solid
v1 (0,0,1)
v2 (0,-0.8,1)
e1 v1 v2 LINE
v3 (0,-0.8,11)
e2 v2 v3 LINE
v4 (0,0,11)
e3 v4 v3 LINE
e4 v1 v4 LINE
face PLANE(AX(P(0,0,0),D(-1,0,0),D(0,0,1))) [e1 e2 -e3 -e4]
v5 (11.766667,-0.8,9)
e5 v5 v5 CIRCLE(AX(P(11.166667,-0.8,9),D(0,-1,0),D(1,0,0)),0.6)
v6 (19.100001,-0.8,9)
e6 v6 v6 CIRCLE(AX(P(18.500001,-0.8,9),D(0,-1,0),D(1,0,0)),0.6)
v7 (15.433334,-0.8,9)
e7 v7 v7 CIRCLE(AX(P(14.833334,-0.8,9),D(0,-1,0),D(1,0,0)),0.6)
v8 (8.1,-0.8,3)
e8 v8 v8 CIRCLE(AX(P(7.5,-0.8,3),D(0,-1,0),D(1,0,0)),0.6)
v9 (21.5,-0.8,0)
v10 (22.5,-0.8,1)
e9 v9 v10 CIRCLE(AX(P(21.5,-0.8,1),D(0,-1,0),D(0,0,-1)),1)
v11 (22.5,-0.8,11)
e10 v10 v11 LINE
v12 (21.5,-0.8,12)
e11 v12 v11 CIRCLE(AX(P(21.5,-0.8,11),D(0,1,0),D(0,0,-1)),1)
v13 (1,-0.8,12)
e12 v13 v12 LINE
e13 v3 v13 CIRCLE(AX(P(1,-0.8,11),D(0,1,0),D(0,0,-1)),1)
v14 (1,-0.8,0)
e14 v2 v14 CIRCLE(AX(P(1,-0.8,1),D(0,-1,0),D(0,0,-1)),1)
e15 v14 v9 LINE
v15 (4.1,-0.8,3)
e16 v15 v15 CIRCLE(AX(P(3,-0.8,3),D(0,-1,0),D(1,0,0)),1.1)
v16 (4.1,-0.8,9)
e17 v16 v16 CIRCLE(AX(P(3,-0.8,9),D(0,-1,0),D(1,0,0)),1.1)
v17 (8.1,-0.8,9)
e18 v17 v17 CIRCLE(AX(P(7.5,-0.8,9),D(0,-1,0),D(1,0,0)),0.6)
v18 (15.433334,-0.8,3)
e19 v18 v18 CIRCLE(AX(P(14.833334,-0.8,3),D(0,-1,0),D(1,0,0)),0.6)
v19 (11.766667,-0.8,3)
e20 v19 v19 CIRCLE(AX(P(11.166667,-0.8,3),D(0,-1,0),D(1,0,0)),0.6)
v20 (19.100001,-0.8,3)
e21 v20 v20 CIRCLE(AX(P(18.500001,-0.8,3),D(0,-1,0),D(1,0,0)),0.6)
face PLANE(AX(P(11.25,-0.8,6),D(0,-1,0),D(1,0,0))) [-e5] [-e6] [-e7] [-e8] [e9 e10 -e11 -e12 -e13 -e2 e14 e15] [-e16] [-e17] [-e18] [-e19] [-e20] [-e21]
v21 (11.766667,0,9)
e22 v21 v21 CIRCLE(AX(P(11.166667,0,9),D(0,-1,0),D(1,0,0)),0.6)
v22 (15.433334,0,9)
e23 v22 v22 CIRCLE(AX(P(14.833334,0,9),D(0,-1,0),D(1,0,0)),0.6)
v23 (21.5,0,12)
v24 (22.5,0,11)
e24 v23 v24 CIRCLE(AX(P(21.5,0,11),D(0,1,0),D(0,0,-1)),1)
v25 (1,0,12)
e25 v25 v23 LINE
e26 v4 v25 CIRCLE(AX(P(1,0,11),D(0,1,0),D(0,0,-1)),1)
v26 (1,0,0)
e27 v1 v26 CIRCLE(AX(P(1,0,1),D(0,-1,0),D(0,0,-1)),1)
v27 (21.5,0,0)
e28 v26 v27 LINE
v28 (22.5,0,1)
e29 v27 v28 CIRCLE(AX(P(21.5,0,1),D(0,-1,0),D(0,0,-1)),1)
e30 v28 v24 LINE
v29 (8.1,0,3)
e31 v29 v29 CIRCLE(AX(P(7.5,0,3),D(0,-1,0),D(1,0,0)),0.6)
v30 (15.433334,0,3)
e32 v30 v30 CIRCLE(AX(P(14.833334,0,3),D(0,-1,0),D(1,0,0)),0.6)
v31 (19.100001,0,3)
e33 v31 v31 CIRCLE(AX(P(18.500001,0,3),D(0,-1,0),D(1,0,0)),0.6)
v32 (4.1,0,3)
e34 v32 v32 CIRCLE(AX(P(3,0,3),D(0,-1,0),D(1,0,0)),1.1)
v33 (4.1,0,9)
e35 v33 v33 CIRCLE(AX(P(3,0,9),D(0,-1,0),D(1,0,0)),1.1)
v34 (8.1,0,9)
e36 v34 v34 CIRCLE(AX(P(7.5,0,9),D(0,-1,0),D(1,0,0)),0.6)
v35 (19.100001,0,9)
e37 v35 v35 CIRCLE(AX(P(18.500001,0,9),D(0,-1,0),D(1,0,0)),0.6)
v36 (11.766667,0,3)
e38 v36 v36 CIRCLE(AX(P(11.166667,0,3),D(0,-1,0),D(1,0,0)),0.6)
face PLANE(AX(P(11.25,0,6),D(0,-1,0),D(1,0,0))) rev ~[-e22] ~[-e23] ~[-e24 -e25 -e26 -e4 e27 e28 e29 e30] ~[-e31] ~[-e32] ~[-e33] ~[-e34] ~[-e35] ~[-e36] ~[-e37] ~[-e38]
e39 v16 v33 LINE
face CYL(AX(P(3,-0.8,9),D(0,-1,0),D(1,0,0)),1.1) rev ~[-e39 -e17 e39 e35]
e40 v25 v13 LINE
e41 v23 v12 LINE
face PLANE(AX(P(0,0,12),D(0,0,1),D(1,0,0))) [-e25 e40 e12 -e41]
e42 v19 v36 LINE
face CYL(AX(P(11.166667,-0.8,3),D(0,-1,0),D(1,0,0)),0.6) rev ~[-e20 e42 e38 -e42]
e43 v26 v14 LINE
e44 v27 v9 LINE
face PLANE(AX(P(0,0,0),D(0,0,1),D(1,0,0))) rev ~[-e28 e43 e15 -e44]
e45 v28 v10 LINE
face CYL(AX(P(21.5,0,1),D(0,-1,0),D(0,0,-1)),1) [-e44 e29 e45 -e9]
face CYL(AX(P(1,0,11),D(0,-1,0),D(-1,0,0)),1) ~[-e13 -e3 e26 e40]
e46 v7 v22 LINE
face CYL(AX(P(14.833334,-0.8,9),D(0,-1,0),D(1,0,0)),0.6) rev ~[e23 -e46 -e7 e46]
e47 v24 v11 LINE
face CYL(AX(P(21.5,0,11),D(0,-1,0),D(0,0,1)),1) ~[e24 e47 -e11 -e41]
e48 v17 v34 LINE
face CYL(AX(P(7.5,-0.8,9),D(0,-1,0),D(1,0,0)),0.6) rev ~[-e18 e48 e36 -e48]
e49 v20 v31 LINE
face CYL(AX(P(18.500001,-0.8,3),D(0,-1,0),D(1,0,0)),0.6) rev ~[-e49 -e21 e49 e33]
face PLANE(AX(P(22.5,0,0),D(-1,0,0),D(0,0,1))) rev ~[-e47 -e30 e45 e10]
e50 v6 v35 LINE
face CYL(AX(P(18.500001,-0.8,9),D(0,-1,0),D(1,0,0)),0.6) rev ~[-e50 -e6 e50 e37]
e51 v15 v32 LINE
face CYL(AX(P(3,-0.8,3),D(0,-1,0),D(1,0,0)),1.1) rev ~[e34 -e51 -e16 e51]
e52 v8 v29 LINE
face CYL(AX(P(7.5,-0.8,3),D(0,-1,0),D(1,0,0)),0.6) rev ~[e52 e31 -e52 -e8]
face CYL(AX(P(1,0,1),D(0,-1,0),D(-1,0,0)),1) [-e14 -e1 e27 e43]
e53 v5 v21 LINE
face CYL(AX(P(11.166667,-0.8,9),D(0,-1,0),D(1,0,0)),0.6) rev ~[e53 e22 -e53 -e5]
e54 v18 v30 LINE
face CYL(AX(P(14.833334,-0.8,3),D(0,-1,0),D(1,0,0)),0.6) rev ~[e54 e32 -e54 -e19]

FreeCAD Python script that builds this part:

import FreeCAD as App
import Part
import Sketcher
Q = App.Units.Quantity


def edges_at(feature, points):
    """Names of the edges that pass closest to the given points."""
    edges = feature.Shape.Edges
    near = lambda p: min(range(len(edges)), key=lambda i: edges[i].distToShape(Part.Vertex(*p))[0])
    return sorted({f"Edge{near(p) + 1}" for p in points})


def add_polygon(sketch, points):
    """Adds a closed chain of lines whose ends are joined by coincident constraints."""
    first, n = sketch.GeometryCount, len(points)
    for a, b in zip(points, points[1:] + points[:1]):
        sketch.addGeometry(Part.LineSegment(App.Vector(*a, 0), App.Vector(*b, 0)), False)
    for i in range(n):
        sketch.addConstraint(Sketcher.Constraint("Coincident", first + i, 2, first + (i + 1) % n, 1))

doc = App.newDocument("Part")
body = doc.addObject("PartDesign::Body", "Body")

sketch1 = body.newObject("Sketcher::SketchObject", "Sketch")
sketch1.AttachmentSupport = (doc.getObject("XZ_Plane"), [""])
sketch1.MapMode = "FlatFace"
add_polygon(sketch1, [(0, 12), (0, 0), (22.5, 0), (22.5, 12)])
sketch1.addConstraint(Sketcher.Constraint("Vertical", 0))
sketch1.addConstraint(Sketcher.Constraint("Horizontal", 1))
sketch1.addConstraint(Sketcher.Constraint("Vertical", 2))
sketch1.addConstraint(Sketcher.Constraint("Horizontal", 3))
sketch1.addConstraint(Sketcher.Constraint("Coincident", 0, 2, -1, 1))
sketch1.addConstraint(Sketcher.Constraint("DistanceY", 0, 2, 0, 1, Q("12 mm")))
sketch1.addConstraint(Sketcher.Constraint("DistanceX", 1, 1, 1, 2, Q("22.5 mm")))
pad1 = body.newObject("PartDesign::Pad", "Pad")
pad1.Profile = sketch1
pad1.Length = 0.8

sketch2 = body.newObject("Sketcher::SketchObject", "Sketch001")
sketch2.AttachmentSupport = (doc.getObject("XZ_Plane"), [""])
sketch2.MapMode = "FlatFace"
sketch2.AttachmentOffset = App.Placement(App.Vector(0, 0, 0.8), App.Rotation())
sketch2.addGeometry(Part.Circle(App.Vector(3, 9, 0), App.Vector(0, 0, 1), 1.1), False)
sketch2.addGeometry(Part.Circle(App.Vector(3, 3, 0), App.Vector(0, 0, 1), 1.1), False)
sketch2.addConstraint(Sketcher.Constraint("Equal", 0, 1))
sketch2.addConstraint(Sketcher.Constraint("Vertical", 0, 3, 1, 3))
sketch2.addConstraint(Sketcher.Constraint("Diameter", 0, Q("2.2 mm")))
sketch2.addConstraint(Sketcher.Constraint("DistanceX", -1, 1, 0, 3, Q("3 mm")))
sketch2.addConstraint(Sketcher.Constraint("DistanceY", -1, 1, 0, 3, Q("9 mm")))
sketch2.addConstraint(Sketcher.Constraint("DistanceY", -1, 1, 1, 3, Q("3 mm")))
pocket1 = body.newObject("PartDesign::Pocket", "Pocket")
pocket1.Profile = sketch2
pocket1.Length = 5
doc.recompute()

fillet = body.newObject("PartDesign::Fillet", "Fillet")
fillet.Base = (pocket1, edges_at(pocket1, [
    (0, -0.4, 12),
    (22.5, -0.4, 12),
    (22.5, -0.4, 0),
    (0, -0.4, 0),
]))
fillet.Radius = 1

sketch3 = body.newObject("Sketcher::SketchObject", "Sketch002")
sketch3.AttachmentSupport = (doc.getObject("XZ_Plane"), [""])
sketch3.MapMode = "FlatFace"
sketch3.AttachmentOffset = App.Placement(App.Vector(0, 0, 0.8), App.Rotation())
sketch3.addGeometry(Part.Circle(App.Vector(7.5, 9, 0), App.Vector(0, 0, 1), 0.6), False)
sketch3.addGeometry(Part.Circle(App.Vector(7.5, 3, 0), App.Vector(0, 0, 1), 0.6), False)
sketch3.addConstraint(Sketcher.Constraint("Equal", 0, 1))
sketch3.addConstraint(Sketcher.Constraint("Vertical", 0, 3, 1, 3))
sketch3.addConstraint(Sketcher.Constraint("Diameter", 0, Q("1.2 mm")))
sketch3.addConstraint(Sketcher.Constraint("DistanceY", -1, 1, 0, 3, Q("9 mm")))
sketch3.addConstraint(Sketcher.Constraint("DistanceY", -1, 1, 1, 3, Q("3 mm")))
sketch3.addConstraint(Sketcher.Constraint("DistanceX", -1, 1, 0, 3, Q("7.5 mm")))
pocket2 = body.newObject("PartDesign::Pocket", "Pocket001")
pocket2.Profile = sketch3
pocket2.Length = 5
doc.recompute()

linearpattern = body.newObject("PartDesign::LinearPattern", "LinearPattern")
linearpattern.Originals = [pocket2]
linearpattern.Direction = (doc.getObject("X_Axis"), [""])
linearpattern.Mode = "offset"
linearpattern.Offset = 3.666667
linearpattern.Occurrences = 4
body.Tip = linearpattern

doc.recompute()
